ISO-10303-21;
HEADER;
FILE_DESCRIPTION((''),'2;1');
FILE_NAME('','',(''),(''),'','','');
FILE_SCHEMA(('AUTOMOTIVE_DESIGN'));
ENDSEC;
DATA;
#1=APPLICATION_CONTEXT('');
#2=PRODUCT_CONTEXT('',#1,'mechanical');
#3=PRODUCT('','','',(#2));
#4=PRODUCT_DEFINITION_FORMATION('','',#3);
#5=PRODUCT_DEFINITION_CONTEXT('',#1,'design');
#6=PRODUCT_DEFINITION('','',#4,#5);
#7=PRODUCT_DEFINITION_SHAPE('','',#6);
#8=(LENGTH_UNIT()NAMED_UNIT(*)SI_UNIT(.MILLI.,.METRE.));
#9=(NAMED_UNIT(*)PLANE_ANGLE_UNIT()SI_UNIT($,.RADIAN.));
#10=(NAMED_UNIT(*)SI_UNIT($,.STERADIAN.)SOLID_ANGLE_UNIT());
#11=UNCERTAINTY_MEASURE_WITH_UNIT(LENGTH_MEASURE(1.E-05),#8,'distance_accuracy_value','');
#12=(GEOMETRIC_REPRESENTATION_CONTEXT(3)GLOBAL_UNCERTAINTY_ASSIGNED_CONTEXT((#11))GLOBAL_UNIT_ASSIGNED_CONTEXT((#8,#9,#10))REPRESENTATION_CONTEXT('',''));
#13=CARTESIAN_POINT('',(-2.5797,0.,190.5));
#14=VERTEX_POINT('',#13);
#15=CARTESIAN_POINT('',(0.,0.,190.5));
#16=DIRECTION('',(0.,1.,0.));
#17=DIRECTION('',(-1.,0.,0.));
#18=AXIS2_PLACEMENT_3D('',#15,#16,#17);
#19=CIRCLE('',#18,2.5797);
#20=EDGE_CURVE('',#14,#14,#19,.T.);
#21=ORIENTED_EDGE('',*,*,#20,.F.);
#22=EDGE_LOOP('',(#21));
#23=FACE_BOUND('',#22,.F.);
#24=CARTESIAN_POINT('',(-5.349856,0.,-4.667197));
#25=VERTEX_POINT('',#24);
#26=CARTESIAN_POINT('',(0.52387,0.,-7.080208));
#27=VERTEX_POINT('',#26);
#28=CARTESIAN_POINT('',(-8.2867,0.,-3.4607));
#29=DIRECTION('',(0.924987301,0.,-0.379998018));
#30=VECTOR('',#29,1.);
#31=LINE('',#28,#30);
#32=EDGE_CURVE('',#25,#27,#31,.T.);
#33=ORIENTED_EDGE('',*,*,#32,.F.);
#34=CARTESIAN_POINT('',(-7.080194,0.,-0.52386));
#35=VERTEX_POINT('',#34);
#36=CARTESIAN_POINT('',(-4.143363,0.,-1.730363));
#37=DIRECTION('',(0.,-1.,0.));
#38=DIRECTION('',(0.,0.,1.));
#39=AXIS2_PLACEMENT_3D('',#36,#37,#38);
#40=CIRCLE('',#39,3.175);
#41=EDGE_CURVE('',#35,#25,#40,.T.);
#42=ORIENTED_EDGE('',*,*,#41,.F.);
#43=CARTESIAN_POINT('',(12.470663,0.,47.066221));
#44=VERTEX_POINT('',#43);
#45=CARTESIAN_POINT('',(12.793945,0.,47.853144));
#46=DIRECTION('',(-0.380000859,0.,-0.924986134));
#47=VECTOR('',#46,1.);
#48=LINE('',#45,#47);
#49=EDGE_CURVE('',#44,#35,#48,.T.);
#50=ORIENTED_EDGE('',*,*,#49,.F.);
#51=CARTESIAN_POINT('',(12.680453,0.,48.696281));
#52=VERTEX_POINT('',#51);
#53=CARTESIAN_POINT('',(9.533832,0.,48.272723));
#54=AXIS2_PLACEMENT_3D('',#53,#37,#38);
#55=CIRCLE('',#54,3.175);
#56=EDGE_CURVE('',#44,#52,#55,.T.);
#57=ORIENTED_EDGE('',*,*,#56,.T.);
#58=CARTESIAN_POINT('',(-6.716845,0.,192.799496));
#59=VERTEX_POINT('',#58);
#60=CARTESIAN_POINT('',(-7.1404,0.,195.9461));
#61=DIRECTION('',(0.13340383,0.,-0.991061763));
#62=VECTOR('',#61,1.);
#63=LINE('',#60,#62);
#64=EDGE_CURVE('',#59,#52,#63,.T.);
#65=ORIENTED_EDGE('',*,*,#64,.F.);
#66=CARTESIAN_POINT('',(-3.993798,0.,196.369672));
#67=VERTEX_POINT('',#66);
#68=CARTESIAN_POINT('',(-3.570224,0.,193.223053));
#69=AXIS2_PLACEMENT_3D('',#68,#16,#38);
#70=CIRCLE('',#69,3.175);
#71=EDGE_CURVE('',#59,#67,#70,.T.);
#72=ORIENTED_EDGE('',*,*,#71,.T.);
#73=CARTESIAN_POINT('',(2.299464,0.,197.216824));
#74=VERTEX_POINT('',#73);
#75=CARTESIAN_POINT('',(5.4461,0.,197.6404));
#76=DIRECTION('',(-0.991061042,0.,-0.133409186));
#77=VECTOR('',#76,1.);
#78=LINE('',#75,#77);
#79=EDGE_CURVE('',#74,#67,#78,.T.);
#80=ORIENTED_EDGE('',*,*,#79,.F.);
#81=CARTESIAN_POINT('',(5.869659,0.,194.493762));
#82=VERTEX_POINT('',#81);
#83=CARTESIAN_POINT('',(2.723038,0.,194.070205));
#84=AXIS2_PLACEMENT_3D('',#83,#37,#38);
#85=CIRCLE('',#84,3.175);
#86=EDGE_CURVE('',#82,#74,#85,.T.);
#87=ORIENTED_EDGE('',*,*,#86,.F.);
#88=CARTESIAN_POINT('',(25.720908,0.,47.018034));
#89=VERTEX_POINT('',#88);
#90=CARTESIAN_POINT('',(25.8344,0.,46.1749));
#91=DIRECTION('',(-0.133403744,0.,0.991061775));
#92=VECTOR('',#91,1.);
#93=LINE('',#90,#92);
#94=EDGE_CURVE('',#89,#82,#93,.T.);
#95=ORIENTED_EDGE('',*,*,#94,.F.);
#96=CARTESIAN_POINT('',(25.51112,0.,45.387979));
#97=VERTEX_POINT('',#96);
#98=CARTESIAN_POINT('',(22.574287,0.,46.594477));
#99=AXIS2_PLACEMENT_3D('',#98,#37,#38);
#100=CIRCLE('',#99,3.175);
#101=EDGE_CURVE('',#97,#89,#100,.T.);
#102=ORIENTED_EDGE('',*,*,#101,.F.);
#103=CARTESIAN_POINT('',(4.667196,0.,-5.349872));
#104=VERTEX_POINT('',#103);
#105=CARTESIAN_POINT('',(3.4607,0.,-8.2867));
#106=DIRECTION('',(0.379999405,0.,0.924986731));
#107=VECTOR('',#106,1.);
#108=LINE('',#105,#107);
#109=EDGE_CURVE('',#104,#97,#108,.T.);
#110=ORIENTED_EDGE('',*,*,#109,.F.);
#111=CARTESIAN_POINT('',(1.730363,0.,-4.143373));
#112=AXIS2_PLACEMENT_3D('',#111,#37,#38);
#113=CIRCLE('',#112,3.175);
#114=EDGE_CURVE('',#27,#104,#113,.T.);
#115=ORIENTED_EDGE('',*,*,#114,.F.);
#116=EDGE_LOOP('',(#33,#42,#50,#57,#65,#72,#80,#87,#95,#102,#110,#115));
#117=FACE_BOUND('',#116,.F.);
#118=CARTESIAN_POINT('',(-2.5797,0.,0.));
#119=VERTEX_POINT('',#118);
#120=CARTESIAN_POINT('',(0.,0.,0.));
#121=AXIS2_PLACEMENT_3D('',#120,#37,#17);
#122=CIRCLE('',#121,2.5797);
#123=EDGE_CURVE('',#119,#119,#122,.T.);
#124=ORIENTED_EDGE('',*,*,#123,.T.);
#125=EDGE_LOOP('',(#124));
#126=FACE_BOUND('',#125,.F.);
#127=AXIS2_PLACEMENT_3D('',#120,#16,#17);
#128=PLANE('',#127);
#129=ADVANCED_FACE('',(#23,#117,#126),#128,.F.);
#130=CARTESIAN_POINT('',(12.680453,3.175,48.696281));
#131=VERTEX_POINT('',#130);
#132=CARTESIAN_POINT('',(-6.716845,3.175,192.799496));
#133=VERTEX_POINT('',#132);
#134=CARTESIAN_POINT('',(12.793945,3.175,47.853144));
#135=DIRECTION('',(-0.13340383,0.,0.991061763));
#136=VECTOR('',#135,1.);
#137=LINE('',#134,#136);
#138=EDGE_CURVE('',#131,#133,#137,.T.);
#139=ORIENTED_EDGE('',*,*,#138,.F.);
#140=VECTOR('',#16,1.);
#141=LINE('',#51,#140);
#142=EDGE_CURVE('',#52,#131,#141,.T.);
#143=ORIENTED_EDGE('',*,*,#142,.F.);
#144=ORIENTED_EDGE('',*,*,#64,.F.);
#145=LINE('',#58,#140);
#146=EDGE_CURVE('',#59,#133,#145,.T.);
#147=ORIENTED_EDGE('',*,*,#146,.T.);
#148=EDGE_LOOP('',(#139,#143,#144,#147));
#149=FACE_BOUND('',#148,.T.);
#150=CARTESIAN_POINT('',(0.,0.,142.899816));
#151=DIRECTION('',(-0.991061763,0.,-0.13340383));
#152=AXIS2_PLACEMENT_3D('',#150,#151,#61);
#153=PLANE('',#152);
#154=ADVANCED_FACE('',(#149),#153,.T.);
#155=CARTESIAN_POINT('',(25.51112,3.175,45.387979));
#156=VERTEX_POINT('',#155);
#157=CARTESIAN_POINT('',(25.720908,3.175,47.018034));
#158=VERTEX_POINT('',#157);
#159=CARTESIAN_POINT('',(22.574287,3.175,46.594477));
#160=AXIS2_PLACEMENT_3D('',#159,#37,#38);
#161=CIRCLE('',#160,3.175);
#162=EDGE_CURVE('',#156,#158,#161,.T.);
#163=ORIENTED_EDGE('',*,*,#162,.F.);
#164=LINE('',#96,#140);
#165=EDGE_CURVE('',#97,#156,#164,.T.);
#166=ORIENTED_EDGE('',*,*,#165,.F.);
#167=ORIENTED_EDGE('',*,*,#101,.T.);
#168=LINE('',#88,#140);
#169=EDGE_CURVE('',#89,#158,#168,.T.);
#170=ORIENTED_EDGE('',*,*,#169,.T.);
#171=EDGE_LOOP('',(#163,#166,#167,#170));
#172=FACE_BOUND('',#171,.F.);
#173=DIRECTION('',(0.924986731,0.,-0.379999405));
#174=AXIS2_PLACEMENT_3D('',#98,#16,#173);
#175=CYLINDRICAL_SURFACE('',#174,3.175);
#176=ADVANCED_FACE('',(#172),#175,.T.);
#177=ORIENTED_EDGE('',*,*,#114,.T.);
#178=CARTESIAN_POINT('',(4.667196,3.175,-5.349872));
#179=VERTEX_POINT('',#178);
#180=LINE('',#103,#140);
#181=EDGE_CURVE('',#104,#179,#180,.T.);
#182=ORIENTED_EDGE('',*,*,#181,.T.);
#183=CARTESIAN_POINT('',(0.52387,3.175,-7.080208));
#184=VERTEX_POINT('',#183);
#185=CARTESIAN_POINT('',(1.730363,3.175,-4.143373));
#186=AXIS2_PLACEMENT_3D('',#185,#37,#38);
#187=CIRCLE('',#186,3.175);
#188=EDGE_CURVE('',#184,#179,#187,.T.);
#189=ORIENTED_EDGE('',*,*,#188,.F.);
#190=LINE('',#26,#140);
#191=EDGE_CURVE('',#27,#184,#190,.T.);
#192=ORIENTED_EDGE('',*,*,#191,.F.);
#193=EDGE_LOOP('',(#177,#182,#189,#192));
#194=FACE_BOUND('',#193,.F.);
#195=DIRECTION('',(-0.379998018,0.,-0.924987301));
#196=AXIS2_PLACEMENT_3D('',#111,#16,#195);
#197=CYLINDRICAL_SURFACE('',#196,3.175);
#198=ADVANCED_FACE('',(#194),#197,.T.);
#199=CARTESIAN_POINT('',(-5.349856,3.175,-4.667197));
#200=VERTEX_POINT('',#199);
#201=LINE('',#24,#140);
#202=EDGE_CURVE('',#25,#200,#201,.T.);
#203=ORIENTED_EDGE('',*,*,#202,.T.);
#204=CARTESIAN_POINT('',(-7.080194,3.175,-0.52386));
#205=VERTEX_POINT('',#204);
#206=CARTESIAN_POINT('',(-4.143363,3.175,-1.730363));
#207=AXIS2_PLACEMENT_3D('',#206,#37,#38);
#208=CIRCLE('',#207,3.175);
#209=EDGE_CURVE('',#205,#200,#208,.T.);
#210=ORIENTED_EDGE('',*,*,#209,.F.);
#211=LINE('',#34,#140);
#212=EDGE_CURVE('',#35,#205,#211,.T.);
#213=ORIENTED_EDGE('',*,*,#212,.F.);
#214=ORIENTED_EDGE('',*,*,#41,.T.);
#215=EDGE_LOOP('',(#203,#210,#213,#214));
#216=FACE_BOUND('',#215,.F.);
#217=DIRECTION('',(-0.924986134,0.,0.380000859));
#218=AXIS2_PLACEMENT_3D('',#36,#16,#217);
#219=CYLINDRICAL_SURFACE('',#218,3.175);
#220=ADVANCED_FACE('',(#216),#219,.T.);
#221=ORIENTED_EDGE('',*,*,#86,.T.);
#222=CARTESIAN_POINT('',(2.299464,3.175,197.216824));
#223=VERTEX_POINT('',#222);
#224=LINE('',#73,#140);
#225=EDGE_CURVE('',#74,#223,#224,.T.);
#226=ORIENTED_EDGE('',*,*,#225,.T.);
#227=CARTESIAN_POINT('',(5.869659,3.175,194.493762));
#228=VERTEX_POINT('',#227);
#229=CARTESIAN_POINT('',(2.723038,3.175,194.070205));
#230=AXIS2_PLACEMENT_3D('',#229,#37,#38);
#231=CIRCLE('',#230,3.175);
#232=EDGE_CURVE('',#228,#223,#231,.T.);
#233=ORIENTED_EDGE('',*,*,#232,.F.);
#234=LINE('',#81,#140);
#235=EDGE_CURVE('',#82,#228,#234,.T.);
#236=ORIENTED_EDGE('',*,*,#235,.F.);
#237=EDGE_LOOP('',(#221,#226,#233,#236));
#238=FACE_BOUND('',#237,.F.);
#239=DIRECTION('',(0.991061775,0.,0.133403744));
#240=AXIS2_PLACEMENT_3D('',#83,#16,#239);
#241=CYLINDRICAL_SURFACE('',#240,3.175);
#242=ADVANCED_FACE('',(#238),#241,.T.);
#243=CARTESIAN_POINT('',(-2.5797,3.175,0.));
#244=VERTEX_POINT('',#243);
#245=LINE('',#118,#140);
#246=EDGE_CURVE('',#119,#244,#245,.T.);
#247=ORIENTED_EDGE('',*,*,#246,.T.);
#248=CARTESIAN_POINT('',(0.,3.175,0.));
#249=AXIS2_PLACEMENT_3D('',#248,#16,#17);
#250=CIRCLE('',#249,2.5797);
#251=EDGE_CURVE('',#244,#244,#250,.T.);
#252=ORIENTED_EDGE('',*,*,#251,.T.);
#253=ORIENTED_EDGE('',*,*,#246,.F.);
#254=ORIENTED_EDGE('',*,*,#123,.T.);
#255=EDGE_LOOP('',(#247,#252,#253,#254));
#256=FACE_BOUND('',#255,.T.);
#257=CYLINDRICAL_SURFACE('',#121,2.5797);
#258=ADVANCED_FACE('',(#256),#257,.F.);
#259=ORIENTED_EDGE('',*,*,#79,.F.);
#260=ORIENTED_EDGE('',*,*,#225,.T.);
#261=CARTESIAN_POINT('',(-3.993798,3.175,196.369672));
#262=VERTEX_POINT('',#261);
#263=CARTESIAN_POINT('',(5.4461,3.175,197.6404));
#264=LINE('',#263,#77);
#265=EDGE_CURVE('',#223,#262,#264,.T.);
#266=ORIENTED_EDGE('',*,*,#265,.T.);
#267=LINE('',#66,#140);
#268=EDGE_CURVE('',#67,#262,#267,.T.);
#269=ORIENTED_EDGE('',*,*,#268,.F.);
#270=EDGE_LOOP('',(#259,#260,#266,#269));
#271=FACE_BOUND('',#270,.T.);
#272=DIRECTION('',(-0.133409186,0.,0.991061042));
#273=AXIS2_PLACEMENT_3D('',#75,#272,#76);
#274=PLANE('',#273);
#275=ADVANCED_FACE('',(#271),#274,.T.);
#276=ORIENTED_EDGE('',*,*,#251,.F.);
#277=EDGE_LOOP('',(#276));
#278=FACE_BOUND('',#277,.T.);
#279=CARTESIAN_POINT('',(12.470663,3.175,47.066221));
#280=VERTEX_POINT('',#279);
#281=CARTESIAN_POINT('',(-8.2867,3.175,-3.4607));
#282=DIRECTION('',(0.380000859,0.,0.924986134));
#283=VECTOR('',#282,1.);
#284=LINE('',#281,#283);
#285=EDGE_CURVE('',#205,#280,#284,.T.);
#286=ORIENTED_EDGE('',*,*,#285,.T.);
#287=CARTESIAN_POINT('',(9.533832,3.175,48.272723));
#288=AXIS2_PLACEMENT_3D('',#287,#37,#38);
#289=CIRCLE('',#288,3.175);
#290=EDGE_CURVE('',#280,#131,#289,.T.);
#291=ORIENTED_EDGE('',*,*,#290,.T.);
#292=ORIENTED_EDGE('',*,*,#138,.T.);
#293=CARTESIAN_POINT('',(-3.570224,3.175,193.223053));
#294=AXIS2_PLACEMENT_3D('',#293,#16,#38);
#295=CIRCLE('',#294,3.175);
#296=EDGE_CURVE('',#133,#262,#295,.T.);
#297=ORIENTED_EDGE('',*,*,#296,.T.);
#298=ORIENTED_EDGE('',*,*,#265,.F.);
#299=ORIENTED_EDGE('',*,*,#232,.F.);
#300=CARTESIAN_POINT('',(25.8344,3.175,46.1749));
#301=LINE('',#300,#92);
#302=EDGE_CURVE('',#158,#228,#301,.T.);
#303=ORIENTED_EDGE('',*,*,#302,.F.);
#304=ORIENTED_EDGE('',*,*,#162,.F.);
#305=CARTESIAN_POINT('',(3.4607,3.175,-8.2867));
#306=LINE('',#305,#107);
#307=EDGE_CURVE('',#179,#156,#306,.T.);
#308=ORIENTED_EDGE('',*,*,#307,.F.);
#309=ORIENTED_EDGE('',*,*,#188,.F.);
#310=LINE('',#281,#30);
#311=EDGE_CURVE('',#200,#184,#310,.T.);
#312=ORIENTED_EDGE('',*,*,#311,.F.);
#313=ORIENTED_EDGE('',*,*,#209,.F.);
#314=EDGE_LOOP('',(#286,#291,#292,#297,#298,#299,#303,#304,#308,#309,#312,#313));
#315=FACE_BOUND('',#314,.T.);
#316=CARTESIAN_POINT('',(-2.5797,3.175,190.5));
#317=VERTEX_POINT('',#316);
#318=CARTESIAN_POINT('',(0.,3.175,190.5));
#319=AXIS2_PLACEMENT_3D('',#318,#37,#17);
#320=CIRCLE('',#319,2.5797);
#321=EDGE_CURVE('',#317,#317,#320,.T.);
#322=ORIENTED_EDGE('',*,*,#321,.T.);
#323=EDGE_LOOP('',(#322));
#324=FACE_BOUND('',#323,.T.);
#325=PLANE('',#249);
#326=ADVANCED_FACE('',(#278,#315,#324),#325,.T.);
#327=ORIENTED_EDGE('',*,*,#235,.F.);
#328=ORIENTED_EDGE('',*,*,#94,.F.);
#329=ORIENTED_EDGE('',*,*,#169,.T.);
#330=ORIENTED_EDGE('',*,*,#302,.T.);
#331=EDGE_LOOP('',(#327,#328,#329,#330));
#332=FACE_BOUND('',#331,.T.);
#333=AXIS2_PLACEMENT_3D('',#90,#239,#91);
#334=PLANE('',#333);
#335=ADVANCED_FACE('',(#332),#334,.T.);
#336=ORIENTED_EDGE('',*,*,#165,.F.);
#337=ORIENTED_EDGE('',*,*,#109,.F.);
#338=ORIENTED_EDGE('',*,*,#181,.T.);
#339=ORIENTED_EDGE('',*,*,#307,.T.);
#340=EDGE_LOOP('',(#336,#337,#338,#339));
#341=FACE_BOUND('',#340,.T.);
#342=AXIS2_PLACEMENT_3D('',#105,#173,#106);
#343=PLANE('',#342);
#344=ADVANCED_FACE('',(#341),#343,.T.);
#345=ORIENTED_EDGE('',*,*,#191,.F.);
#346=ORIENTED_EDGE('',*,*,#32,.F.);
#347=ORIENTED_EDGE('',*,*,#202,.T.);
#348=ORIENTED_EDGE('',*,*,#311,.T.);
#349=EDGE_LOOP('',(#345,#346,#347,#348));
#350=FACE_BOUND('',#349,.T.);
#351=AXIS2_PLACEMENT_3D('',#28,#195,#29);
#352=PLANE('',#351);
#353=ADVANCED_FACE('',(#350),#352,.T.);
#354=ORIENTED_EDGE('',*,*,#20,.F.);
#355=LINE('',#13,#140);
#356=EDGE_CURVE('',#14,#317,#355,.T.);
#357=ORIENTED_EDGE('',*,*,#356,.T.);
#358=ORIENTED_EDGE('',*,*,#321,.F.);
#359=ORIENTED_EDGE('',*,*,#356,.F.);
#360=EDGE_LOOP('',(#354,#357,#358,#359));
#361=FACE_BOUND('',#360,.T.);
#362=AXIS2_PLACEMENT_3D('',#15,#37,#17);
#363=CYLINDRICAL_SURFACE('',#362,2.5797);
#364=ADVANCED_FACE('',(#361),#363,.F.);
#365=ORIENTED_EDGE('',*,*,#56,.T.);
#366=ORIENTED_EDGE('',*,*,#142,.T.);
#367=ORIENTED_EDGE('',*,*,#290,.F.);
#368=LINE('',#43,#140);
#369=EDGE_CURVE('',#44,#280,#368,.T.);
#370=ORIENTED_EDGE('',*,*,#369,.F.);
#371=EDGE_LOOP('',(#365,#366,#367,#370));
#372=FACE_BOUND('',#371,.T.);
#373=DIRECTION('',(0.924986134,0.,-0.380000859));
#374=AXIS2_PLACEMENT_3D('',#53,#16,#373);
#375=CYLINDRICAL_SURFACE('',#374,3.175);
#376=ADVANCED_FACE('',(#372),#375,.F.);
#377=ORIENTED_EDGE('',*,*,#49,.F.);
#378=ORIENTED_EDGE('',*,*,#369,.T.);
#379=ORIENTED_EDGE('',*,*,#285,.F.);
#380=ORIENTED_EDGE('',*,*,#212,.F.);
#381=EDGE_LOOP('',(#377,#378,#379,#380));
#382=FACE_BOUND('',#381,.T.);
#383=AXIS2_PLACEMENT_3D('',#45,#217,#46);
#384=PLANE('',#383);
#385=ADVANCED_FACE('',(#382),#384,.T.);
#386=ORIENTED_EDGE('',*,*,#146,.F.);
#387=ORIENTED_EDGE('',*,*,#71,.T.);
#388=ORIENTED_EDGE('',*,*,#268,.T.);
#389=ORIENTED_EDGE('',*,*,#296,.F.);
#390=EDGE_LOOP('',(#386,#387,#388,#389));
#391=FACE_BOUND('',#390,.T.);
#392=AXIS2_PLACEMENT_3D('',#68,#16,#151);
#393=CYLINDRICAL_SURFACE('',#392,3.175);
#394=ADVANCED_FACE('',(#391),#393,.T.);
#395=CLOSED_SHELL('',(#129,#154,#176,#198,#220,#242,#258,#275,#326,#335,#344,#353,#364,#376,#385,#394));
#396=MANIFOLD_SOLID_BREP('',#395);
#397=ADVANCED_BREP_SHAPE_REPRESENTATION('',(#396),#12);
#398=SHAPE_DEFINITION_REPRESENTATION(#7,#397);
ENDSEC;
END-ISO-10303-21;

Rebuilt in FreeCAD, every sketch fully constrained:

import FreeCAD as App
import Part
import Sketcher

V = App.Vector
Q = App.Units.Quantity


def edges_at(feature, points):
    """Names of the edges that pass closest to the given points."""
    edges = feature.Shape.Edges
    near = lambda p: min(range(len(edges)), key=lambda i: edges[i].distToShape(Part.Vertex(*p))[0])
    return sorted({f"Edge{near(p) + 1}" for p in points})


def add_polygon(sketch, points):
    """Adds a closed chain of lines whose ends are joined by coincident constraints."""
    first, n = sketch.GeometryCount, len(points)
    for a, b in zip(points, points[1:] + points[:1]):
        sketch.addGeometry(Part.LineSegment(App.Vector(*a, 0), App.Vector(*b, 0)), False)
    for i in range(n):
        sketch.addConstraint(Sketcher.Constraint("Coincident", first + i, 2, first + (i + 1) % n, 1))

doc = App.newDocument("Part")
params = doc.addObject("Spreadsheet::Sheet", "Params")
for row, (alias, value) in enumerate([
    ("sketch1_diameter", "0.203126 in"),
    ("sketch1_diameter2", "0.203126 in"),
    ("sketch1_length", "0.5 in"),
    ("sketch1_length2", "0.5 in"),
    ("sketch1_length3", "6.017 in"),
    ("pad1_length", "0.125 in"),
    ("fillet_radius", "0.125 in"),
], start=1):
    params.set(f"A{row}", alias)
    params.set(f"B{row}", "=" + value)
    params.setAlias(f"B{row}", alias)

body = doc.addObject("PartDesign::Body", "Body")

# Sketch on XZ plane
sketch1 = body.newObject("Sketcher::SketchObject", "Sketch")
sketch1.AttachmentSupport = (doc.getObject("XZ_Plane"), [""])
sketch1.MapMode = "FlatFace"
add_polygon(sketch1, [(12.793945, 47.853144), (-7.1404, 195.9461), (5.4461, 197.6404), (25.8344, 46.1749), (3.4607, -8.2867), (-8.2867, -3.4607)])  # lines 0-5
sketch1.addGeometry(Part.Circle(V(0, 0, 0), V(0, 0, 1), 2.5797), False)  # 6
sketch1.addGeometry(Part.Circle(V(0, 190.5, 0), V(0, 0, 1), 2.5797), False)  # 7
sketch1.addConstraint(Sketcher.Constraint("Coincident", 6, 3, -1, 1))
sketch1.addConstraint(Sketcher.Constraint("PointOnObject", 7, 3, -2))
sketch1.addConstraint(Sketcher.Constraint("Diameter", 6, Q("0.203126 in")))
sketch1.addConstraint(Sketcher.Constraint("Diameter", 7, Q("0.203126 in")))
sketch1.addConstraint(Sketcher.Constraint("Distance", 1, Q("0.5 in")))
sketch1.addConstraint(Sketcher.Constraint("Distance", 4, Q("0.5 in")))
sketch1.addConstraint(Sketcher.Constraint("DistanceY", -1, 1, 7, 3, Q("7.5 in")))
sketch1.addConstraint(Sketcher.Constraint("DistanceY", 3, 2, 4, 2, Q("0.19 in")))
sketch1.addConstraint(Sketcher.Constraint("Distance", 2, Q("6.017 in")))
sketch1.addConstraint(Sketcher.Constraint("DistanceX", -1, 1, 2, 2, Q("1.0171 in")))
sketch1.addConstraint(Sketcher.Constraint("DistanceY", -1, 1, 2, 2, Q("1.8179 in")))
sketch1.addConstraint(Sketcher.Constraint("DistanceX", -1, 1, 5, 2, Q("0.5037 in")))
sketch1.addConstraint(Sketcher.Constraint("DistanceY", 0, 2, 1, 2, Q("0.0667 in")))
sketch1.addConstraint(Sketcher.Constraint("DistanceX", 1, 2, 2, 2, Q("0.8027 in")))
sketch1.addConstraint(Sketcher.Constraint("Distance", 0, 149.4286))
sketch1.addConstraint(Sketcher.Constraint("Distance", 3, 58.8783))
sketch1.addConstraint(Sketcher.Constraint("DistanceX", -1, 1, 3, 2, 3.4607))
sketch1.setExpression("Constraints[8]", "Params.sketch1_diameter")
sketch1.setExpression("Constraints[9]", "Params.sketch1_diameter2")
sketch1.setExpression("Constraints[10]", "Params.sketch1_length")
sketch1.setExpression("Constraints[11]", "Params.sketch1_length2")
sketch1.setExpression("Constraints[14]", "Params.sketch1_length3")
pad1 = body.newObject("PartDesign::Pad", "Pad")
pad1.Profile = sketch1
pad1.setExpression("Length", "Params.pad1_length")
pad1.Reversed = True
doc.recompute()

fillet = body.newObject("PartDesign::Fillet", "Fillet")
fillet.Base = (pad1, edges_at(pad1, [
    (-7.14, 1.587, 195.946),
    (5.446, 1.587, 197.64),
    (25.834, 1.587, 46.175),
    (12.794, 1.587, 47.853),
    (3.461, 1.587, -8.287),
    (-8.287, 1.587, -3.461),
]))
fillet.setExpression("Radius", "Params.fillet_radius")

doc.recompute()
